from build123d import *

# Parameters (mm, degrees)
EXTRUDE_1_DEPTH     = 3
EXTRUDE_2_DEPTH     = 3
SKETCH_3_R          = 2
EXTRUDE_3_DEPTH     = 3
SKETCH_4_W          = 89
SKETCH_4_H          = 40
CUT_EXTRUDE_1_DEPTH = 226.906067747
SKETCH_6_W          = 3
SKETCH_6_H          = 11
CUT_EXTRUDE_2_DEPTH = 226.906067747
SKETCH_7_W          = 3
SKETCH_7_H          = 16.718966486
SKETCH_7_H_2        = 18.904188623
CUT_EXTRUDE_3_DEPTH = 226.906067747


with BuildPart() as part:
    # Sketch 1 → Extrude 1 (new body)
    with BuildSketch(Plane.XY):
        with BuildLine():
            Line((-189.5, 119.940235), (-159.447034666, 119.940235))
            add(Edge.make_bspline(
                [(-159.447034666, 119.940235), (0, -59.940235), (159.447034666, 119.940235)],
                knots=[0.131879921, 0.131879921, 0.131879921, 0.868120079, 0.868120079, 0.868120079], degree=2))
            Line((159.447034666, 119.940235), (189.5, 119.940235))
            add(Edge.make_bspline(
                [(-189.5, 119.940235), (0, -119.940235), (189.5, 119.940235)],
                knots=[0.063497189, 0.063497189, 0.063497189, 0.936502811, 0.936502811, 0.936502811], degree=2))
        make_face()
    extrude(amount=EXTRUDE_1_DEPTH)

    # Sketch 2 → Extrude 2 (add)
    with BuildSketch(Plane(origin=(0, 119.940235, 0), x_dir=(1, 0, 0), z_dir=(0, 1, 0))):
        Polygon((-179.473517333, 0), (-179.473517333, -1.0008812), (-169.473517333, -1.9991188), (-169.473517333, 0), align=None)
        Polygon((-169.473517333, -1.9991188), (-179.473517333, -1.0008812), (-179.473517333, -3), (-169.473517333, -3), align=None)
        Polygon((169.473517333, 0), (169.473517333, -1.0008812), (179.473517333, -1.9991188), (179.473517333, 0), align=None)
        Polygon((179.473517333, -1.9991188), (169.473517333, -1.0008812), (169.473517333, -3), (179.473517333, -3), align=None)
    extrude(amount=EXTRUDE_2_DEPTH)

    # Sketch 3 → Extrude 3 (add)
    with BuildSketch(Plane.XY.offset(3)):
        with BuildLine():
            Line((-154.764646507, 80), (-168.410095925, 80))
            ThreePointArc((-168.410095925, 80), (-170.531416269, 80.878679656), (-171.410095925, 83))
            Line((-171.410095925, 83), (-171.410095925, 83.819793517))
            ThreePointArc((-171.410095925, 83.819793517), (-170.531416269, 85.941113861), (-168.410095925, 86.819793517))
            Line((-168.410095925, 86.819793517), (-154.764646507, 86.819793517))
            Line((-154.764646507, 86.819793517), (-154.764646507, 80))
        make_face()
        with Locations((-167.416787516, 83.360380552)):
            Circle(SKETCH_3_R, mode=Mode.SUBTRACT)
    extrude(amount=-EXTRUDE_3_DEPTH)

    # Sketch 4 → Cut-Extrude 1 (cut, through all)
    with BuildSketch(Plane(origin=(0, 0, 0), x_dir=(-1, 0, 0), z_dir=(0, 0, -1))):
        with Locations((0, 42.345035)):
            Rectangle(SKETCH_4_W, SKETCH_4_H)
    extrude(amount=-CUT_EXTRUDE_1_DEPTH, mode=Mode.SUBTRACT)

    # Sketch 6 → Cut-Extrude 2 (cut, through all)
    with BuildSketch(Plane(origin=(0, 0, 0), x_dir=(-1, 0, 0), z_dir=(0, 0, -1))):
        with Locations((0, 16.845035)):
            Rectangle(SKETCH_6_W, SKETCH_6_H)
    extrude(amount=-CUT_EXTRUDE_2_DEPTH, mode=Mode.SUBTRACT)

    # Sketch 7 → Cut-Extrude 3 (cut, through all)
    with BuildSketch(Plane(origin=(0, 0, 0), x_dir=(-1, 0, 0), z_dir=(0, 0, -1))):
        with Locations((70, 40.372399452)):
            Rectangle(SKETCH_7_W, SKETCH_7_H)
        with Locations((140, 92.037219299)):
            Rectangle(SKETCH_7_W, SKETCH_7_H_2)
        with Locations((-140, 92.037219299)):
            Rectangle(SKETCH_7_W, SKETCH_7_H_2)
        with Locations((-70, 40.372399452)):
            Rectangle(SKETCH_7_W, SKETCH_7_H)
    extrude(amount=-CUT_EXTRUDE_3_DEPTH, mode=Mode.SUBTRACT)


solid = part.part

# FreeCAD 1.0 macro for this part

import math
import FreeCAD as App
import Part
import Sketcher
Q = App.Units.Quantity

doc = App.newDocument("Part")
params = doc.addObject("Spreadsheet::Sheet", "Params")
for row, (alias, value) in enumerate([
    ("pad1_length", "3 mm"),
    ("sketch2_width", "10 mm"),
    ("sketch2_height", "3 mm"),
    ("pad2_length", "3 mm"),
    ("sketch3_diameter", "4 mm"),
    ("sketch3_radius", "3 mm"),
    ("pad3_length", "3 mm"),
    ("sketch4_width", "89 mm"),
    ("sketch4_height", "40 mm"),
    ("sketch5_width", "3 mm"),
    ("sketch5_height", "11 mm"),
    ("sketch6_width", "3 mm"),
], start=1):
    params.set(f"A{row}", alias)
    params.set(f"B{row}", "=" + value)
    params.setAlias(f"B{row}", alias)

body = doc.addObject("PartDesign::Body", "Body")

# Sketch on XY plane
sketch1 = body.newObject("Sketcher::SketchObject", "Sketch")
sketch1.AttachmentSupport = (doc.getObject("XY_Plane"), [""])
sketch1.MapMode = "FlatFace"
sketch1.addGeometry(Part.LineSegment(App.Vector(-159.447035, 119.940235, 0), App.Vector(-189.5, 119.940235, 0)), False)
sketch1.addGeometry(Part.BSplineCurve([App.Vector(-189.5, 119.940235, 0), App.Vector(0, -119.940235, 0), App.Vector(189.5, 119.940235, 0)], [3, 3], [0.063497189, 0.936502811], False, 2, [1, 1, 1], False), False)
sketch1.addGeometry(Part.LineSegment(App.Vector(189.5, 119.940235, 0), App.Vector(159.447035, 119.940235, 0)), False)
sketch1.addGeometry(Part.BSplineCurve([App.Vector(-159.447035, 119.940235, 0), App.Vector(0, -59.940235, 0), App.Vector(159.447035, 119.940235, 0)], [3, 3], [0.131879921, 0.868120079], False, 2, [1, 1, 1], False), False)
sketch1.addConstraint(Sketcher.Constraint("Block", 1))
sketch1.addConstraint(Sketcher.Constraint("Block", 3))
sketch1.addConstraint(Sketcher.Constraint("Coincident", 0, 2, 1, 1))
sketch1.addConstraint(Sketcher.Constraint("Coincident", 1, 2, 2, 1))
sketch1.addConstraint(Sketcher.Constraint("Coincident", 2, 2, 3, 2))
sketch1.addConstraint(Sketcher.Constraint("Coincident", 3, 1, 0, 1))
pad1 = body.newObject("PartDesign::Pad", "Pad")
pad1.Profile = sketch1
pad1.setExpression("Length", "Params.pad1_length")

# Sketch on XZ plane
sketch2 = body.newObject("Sketcher::SketchObject", "Sketch001")
sketch2.AttachmentSupport = (doc.getObject("XZ_Plane"), [""])
sketch2.MapMode = "FlatFace"
sketch2.AttachmentOffset = App.Placement(App.Vector(0, 0, -119.940235), App.Rotation())
sketch2.addGeometry(Part.LineSegment(App.Vector(-179.5, 0, 0), App.Vector(-179.5, 3, 0)), False)
sketch2.addGeometry(Part.LineSegment(App.Vector(-179.5, 3, 0), App.Vector(-169.5, 3, 0)), False)
sketch2.addGeometry(Part.LineSegment(App.Vector(-169.5, 3, 0), App.Vector(-169.5, 0, 0)), False)
sketch2.addGeometry(Part.LineSegment(App.Vector(-169.5, 0, 0), App.Vector(-179.5, 0, 0)), False)
sketch2.addGeometry(Part.LineSegment(App.Vector(169.5, 0, 0), App.Vector(169.5, 3, 0)), False)
sketch2.addGeometry(Part.LineSegment(App.Vector(169.5, 3, 0), App.Vector(179.5, 3, 0)), False)
sketch2.addGeometry(Part.LineSegment(App.Vector(179.5, 3, 0), App.Vector(179.5, 0, 0)), False)
sketch2.addGeometry(Part.LineSegment(App.Vector(179.5, 0, 0), App.Vector(169.5, 0, 0)), False)
sketch2.addConstraint(Sketcher.Constraint("Coincident", 0, 2, 1, 1))
sketch2.addConstraint(Sketcher.Constraint("Coincident", 1, 2, 2, 1))
sketch2.addConstraint(Sketcher.Constraint("Coincident", 2, 2, 3, 1))
sketch2.addConstraint(Sketcher.Constraint("Coincident", 3, 2, 0, 1))
sketch2.addConstraint(Sketcher.Constraint("Coincident", 4, 2, 5, 1))
sketch2.addConstraint(Sketcher.Constraint("Coincident", 5, 2, 6, 1))
sketch2.addConstraint(Sketcher.Constraint("Coincident", 6, 2, 7, 1))
sketch2.addConstraint(Sketcher.Constraint("Coincident", 7, 2, 4, 1))
sketch2.addConstraint(Sketcher.Constraint("Vertical", 0))
sketch2.addConstraint(Sketcher.Constraint("Horizontal", 1))
sketch2.addConstraint(Sketcher.Constraint("Vertical", 2))
sketch2.addConstraint(Sketcher.Constraint("Horizontal", 3))
sketch2.addConstraint(Sketcher.Constraint("Vertical", 4))
sketch2.addConstraint(Sketcher.Constraint("Horizontal", 5))
sketch2.addConstraint(Sketcher.Constraint("Vertical", 6))
sketch2.addConstraint(Sketcher.Constraint("Horizontal", 7))
sketch2.addConstraint(Sketcher.Constraint("Symmetric", 3, 2, 6, 2, -1, 1))
sketch2.addConstraint(Sketcher.Constraint("Symmetric", 1, 2, 4, 2, -2))
sketch2.addConstraint(Sketcher.Constraint("PointOnObject", 2, 2, -1))
sketch2.addConstraint(Sketcher.Constraint("DistanceX", 1, 1, 1, 2, Q("10 mm")))
sketch2.addConstraint(Sketcher.Constraint("DistanceY", 0, 1, 0, 2, Q("3 mm")))
sketch2.addConstraint(Sketcher.Constraint("DistanceX", 0, 2, -1, 1, Q("179.473517 mm")))
sketch2.setExpression("Constraints[19]", "Params.sketch2_width")
sketch2.setExpression("Constraints[20]", "Params.sketch2_height")
pad2 = body.newObject("PartDesign::Pad", "Pad001")
pad2.Profile = sketch2
pad2.setExpression("Length", "Params.pad2_length")
pad2.Reversed = True

# Sketch on XY plane
sketch3 = body.newObject("Sketcher::SketchObject", "Sketch002")
sketch3.AttachmentSupport = (doc.getObject("XY_Plane"), [""])
sketch3.MapMode = "FlatFace"
sketch3.AttachmentOffset = App.Placement(App.Vector(0, 0, 3), App.Rotation())
sketch3.addGeometry(Part.LineSegment(App.Vector(-168.4, 80, 0), App.Vector(-154.8, 80, 0)), False)
sketch3.addGeometry(Part.LineSegment(App.Vector(-154.8, 80, 0), App.Vector(-154.8, 86.8, 0)), False)
sketch3.addGeometry(Part.LineSegment(App.Vector(-154.8, 86.8, 0), App.Vector(-168.4, 86.8, 0)), False)
sketch3.addGeometry(Part.ArcOfCircle(Part.Circle(App.Vector(-168.4, 83.8, 0), App.Vector(0, 0, 1), 3), math.radians(90), math.radians(180)), False)
sketch3.addGeometry(Part.LineSegment(App.Vector(-171.4, 83.8, 0), App.Vector(-171.4, 83, 0)), False)
sketch3.addGeometry(Part.ArcOfCircle(Part.Circle(App.Vector(-168.4, 83, 0), App.Vector(0, 0, 1), 3), math.radians(180), math.radians(270)), False)
sketch3.addGeometry(Part.Circle(App.Vector(-167.4, 83.4, 0), App.Vector(0, 0, 1), 2), False)
sketch3.addConstraint(Sketcher.Constraint("Coincident", 0, 2, 1, 1))
sketch3.addConstraint(Sketcher.Constraint("Coincident", 1, 2, 2, 1))
sketch3.addConstraint(Sketcher.Constraint("Tangent", 2, 2, 3, 1))
sketch3.addConstraint(Sketcher.Constraint("Tangent", 3, 2, 4, 1))
sketch3.addConstraint(Sketcher.Constraint("Tangent", 4, 2, 5, 1))
sketch3.addConstraint(Sketcher.Constraint("Tangent", 5, 2, 0, 1))
sketch3.addConstraint(Sketcher.Constraint("Horizontal", 0))
sketch3.addConstraint(Sketcher.Constraint("Vertical", 1))
sketch3.addConstraint(Sketcher.Constraint("Horizontal", 2))
sketch3.addConstraint(Sketcher.Constraint("Vertical", 4))
sketch3.addConstraint(Sketcher.Constraint("Equal", 3, 5))
sketch3.addConstraint(Sketcher.Constraint("Diameter", 6, Q("4 mm")))
sketch3.addConstraint(Sketcher.Constraint("Radius", 3, Q("3 mm")))
sketch3.addConstraint(Sketcher.Constraint("DistanceY", -1, 1, 5, 3, Q("83 mm")))
sketch3.addConstraint(Sketcher.Constraint("DistanceX", 0, 1, 0, 2, Q("13.645449 mm")))
sketch3.addConstraint(Sketcher.Constraint("DistanceY", 1, 1, 1, 2, Q("6.819794 mm")))
sketch3.addConstraint(Sketcher.Constraint("DistanceY", -1, 1, 6, 3, Q("83.360381 mm")))
sketch3.addConstraint(Sketcher.Constraint("DistanceX", 5, 3, 6, 3, Q("0.993308 mm")))
sketch3.addConstraint(Sketcher.Constraint("DistanceX", 3, 3, -1, 1, Q("168.410096 mm")))
sketch3.setExpression("Constraints[11]", "Params.sketch3_diameter")
sketch3.setExpression("Constraints[12]", "Params.sketch3_radius")
pad3 = body.newObject("PartDesign::Pad", "Pad002")
pad3.Profile = sketch3
pad3.setExpression("Length", "Params.pad3_length")
pad3.Reversed = True

# Sketch on XY plane
sketch4 = body.newObject("Sketcher::SketchObject", "Sketch003")
sketch4.AttachmentSupport = (doc.getObject("XY_Plane"), [""])
sketch4.MapMode = "FlatFace"
sketch4.addGeometry(Part.LineSegment(App.Vector(44, 62, 0), App.Vector(44, 22, 0)), False)
sketch4.addGeometry(Part.LineSegment(App.Vector(44, 22, 0), App.Vector(-44, 22, 0)), False)
sketch4.addGeometry(Part.LineSegment(App.Vector(-44, 22, 0), App.Vector(-44, 62, 0)), False)
sketch4.addGeometry(Part.LineSegment(App.Vector(-44, 62, 0), App.Vector(44, 62, 0)), False)
sketch4.addConstraint(Sketcher.Constraint("Coincident", 0, 2, 1, 1))
sketch4.addConstraint(Sketcher.Constraint("Coincident", 1, 2, 2, 1))
sketch4.addConstraint(Sketcher.Constraint("Coincident", 2, 2, 3, 1))
sketch4.addConstraint(Sketcher.Constraint("Coincident", 3, 2, 0, 1))
sketch4.addConstraint(Sketcher.Constraint("Vertical", 0))
sketch4.addConstraint(Sketcher.Constraint("Horizontal", 1))
sketch4.addConstraint(Sketcher.Constraint("Vertical", 2))
sketch4.addConstraint(Sketcher.Constraint("Horizontal", 3))
sketch4.addConstraint(Sketcher.Constraint("DistanceX", 1, 2, 1, 1, Q("89 mm")))
sketch4.addConstraint(Sketcher.Constraint("DistanceY", 0, 2, 0, 1, Q("40 mm")))
sketch4.addConstraint(Sketcher.Constraint("DistanceX", -1, 1, 0, 2, Q("44.5 mm")))
sketch4.addConstraint(Sketcher.Constraint("DistanceY", -1, 1, 0, 2, Q("22.345035 mm")))
sketch4.setExpression("Constraints[8]", "Params.sketch4_width")
sketch4.setExpression("Constraints[9]", "Params.sketch4_height")
pocket1 = body.newObject("PartDesign::Pocket", "Pocket")
pocket1.Profile = sketch4
pocket1.Type = "ThroughAll"
pocket1.Reversed = True

# Sketch on XY plane
sketch5 = body.newObject("Sketcher::SketchObject", "Sketch004")
sketch5.AttachmentSupport = (doc.getObject("XY_Plane"), [""])
sketch5.MapMode = "FlatFace"
sketch5.addGeometry(Part.LineSegment(App.Vector(1.5, 22.3, 0), App.Vector(1.5, 11.3, 0)), False)
sketch5.addGeometry(Part.LineSegment(App.Vector(1.5, 11.3, 0), App.Vector(-1.5, 11.3, 0)), False)
sketch5.addGeometry(Part.LineSegment(App.Vector(-1.5, 11.3, 0), App.Vector(-1.5, 22.3, 0)), False)
sketch5.addGeometry(Part.LineSegment(App.Vector(-1.5, 22.3, 0), App.Vector(1.5, 22.3, 0)), False)
sketch5.addConstraint(Sketcher.Constraint("Coincident", 0, 2, 1, 1))
sketch5.addConstraint(Sketcher.Constraint("Coincident", 1, 2, 2, 1))
sketch5.addConstraint(Sketcher.Constraint("Coincident", 2, 2, 3, 1))
sketch5.addConstraint(Sketcher.Constraint("Coincident", 3, 2, 0, 1))
sketch5.addConstraint(Sketcher.Constraint("Vertical", 0))
sketch5.addConstraint(Sketcher.Constraint("Horizontal", 1))
sketch5.addConstraint(Sketcher.Constraint("Vertical", 2))
sketch5.addConstraint(Sketcher.Constraint("Horizontal", 3))
sketch5.addConstraint(Sketcher.Constraint("DistanceX", 1, 2, 1, 1, Q("3 mm")))
sketch5.addConstraint(Sketcher.Constraint("DistanceY", 0, 2, 0, 1, Q("11 mm")))
sketch5.addConstraint(Sketcher.Constraint("DistanceX", -1, 1, 0, 2, Q("1.5 mm")))
sketch5.addConstraint(Sketcher.Constraint("DistanceY", -1, 1, 0, 2, Q("11.345035 mm")))
sketch5.setExpression("Constraints[8]", "Params.sketch5_width")
sketch5.setExpression("Constraints[9]", "Params.sketch5_height")
pocket2 = body.newObject("PartDesign::Pocket", "Pocket001")
pocket2.Profile = sketch5
pocket2.Type = "ThroughAll"
pocket2.Reversed = True

# Sketch on XY plane
sketch6 = body.newObject("Sketcher::SketchObject", "Sketch005")
sketch6.AttachmentSupport = (doc.getObject("XY_Plane"), [""])
sketch6.MapMode = "FlatFace"
sketch6.addGeometry(Part.LineSegment(App.Vector(-68.5, 48.7, 0), App.Vector(-68.5, 32, 0)), False)
sketch6.addGeometry(Part.LineSegment(App.Vector(-68.5, 32, 0), App.Vector(-71.5, 32, 0)), False)
sketch6.addGeometry(Part.LineSegment(App.Vector(-71.5, 32, 0), App.Vector(-71.5, 48.7, 0)), False)
sketch6.addGeometry(Part.LineSegment(App.Vector(-71.5, 48.7, 0), App.Vector(-68.5, 48.7, 0)), False)
sketch6.addGeometry(Part.LineSegment(App.Vector(-138.5, 101.5, 0), App.Vector(-138.5, 82.6, 0)), False)
sketch6.addGeometry(Part.LineSegment(App.Vector(-138.5, 82.6, 0), App.Vector(-141.5, 82.6, 0)), False)
sketch6.addGeometry(Part.LineSegment(App.Vector(-141.5, 82.6, 0), App.Vector(-141.5, 101.5, 0)), False)
sketch6.addGeometry(Part.LineSegment(App.Vector(-141.5, 101.5, 0), App.Vector(-138.5, 101.5, 0)), False)
sketch6.addGeometry(Part.LineSegment(App.Vector(141.5, 101.5, 0), App.Vector(141.5, 82.6, 0)), False)
sketch6.addGeometry(Part.LineSegment(App.Vector(141.5, 82.6, 0), App.Vector(138.5, 82.6, 0)), False)
sketch6.addGeometry(Part.LineSegment(App.Vector(138.5, 82.6, 0), App.Vector(138.5, 101.5, 0)), False)
sketch6.addGeometry(Part.LineSegment(App.Vector(138.5, 101.5, 0), App.Vector(141.5, 101.5, 0)), False)
sketch6.addGeometry(Part.LineSegment(App.Vector(71.5, 48.7, 0), App.Vector(71.5, 32, 0)), False)
sketch6.addGeometry(Part.LineSegment(App.Vector(71.5, 32, 0), App.Vector(68.5, 32, 0)), False)
sketch6.addGeometry(Part.LineSegment(App.Vector(68.5, 32, 0), App.Vector(68.5, 48.7, 0)), False)
sketch6.addGeometry(Part.LineSegment(App.Vector(68.5, 48.7, 0), App.Vector(71.5, 48.7, 0)), False)
sketch6.addConstraint(Sketcher.Constraint("Coincident", 0, 2, 1, 1))
sketch6.addConstraint(Sketcher.Constraint("Coincident", 1, 2, 2, 1))
sketch6.addConstraint(Sketcher.Constraint("Coincident", 2, 2, 3, 1))
sketch6.addConstraint(Sketcher.Constraint("Coincident", 3, 2, 0, 1))
sketch6.addConstraint(Sketcher.Constraint("Coincident", 4, 2, 5, 1))
sketch6.addConstraint(Sketcher.Constraint("Coincident", 5, 2, 6, 1))
sketch6.addConstraint(Sketcher.Constraint("Coincident", 6, 2, 7, 1))
sketch6.addConstraint(Sketcher.Constraint("Coincident", 7, 2, 4, 1))
sketch6.addConstraint(Sketcher.Constraint("Coincident", 8, 2, 9, 1))
sketch6.addConstraint(Sketcher.Constraint("Coincident", 9, 2, 10, 1))
sketch6.addConstraint(Sketcher.Constraint("Coincident", 10, 2, 11, 1))
sketch6.addConstraint(Sketcher.Constraint("Coincident", 11, 2, 8, 1))
sketch6.addConstraint(Sketcher.Constraint("Coincident", 12, 2, 13, 1))
sketch6.addConstraint(Sketcher.Constraint("Coincident", 13, 2, 14, 1))
sketch6.addConstraint(Sketcher.Constraint("Coincident", 14, 2, 15, 1))
sketch6.addConstraint(Sketcher.Constraint("Coincident", 15, 2, 12, 1))
sketch6.addConstraint(Sketcher.Constraint("Vertical", 0))
sketch6.addConstraint(Sketcher.Constraint("Horizontal", 1))
sketch6.addConstraint(Sketcher.Constraint("Vertical", 2))
sketch6.addConstraint(Sketcher.Constraint("Horizontal", 3))
sketch6.addConstraint(Sketcher.Constraint("Vertical", 4))
sketch6.addConstraint(Sketcher.Constraint("Horizontal", 5))
sketch6.addConstraint(Sketcher.Constraint("Vertical", 6))
sketch6.addConstraint(Sketcher.Constraint("Horizontal", 7))
sketch6.addConstraint(Sketcher.Constraint("Vertical", 8))
sketch6.addConstraint(Sketcher.Constraint("Horizontal", 9))
sketch6.addConstraint(Sketcher.Constraint("Vertical", 10))
sketch6.addConstraint(Sketcher.Constraint("Horizontal", 11))
sketch6.addConstraint(Sketcher.Constraint("Vertical", 12))
sketch6.addConstraint(Sketcher.Constraint("Horizontal", 13))
sketch6.addConstraint(Sketcher.Constraint("Vertical", 14))
sketch6.addConstraint(Sketcher.Constraint("Horizontal", 15))
sketch6.addConstraint(Sketcher.Constraint("Symmetric", 5, 2, 8, 2, -2))
sketch6.addConstraint(Sketcher.Constraint("Symmetric", 7, 2, 10, 2, -2))
sketch6.addConstraint(Sketcher.Constraint("Symmetric", 1, 2, 12, 2, -2))
sketch6.addConstraint(Sketcher.Constraint("Symmetric", 3, 2, 14, 2, -2))
sketch6.addConstraint(Sketcher.Constraint("Equal", 3, 5))
sketch6.addConstraint(Sketcher.Constraint("DistanceX", 1, 2, 1, 1, Q("3 mm")))
sketch6.addConstraint(Sketcher.Constraint("DistanceX", 4, 2, 2, 2, Q("67 mm")))
sketch6.addConstraint(Sketcher.Constraint("DistanceX", 3, 2, 8, 2, Q("210 mm")))
sketch6.addConstraint(Sketcher.Constraint("DistanceY", 4, 2, 4, 1, Q("18.904189 mm")))
sketch6.addConstraint(Sketcher.Constraint("DistanceY", 0, 2, 0, 1, Q("16.718966 mm")))
sketch6.addConstraint(Sketcher.Constraint("DistanceY", 1, 2, 4, 2, Q("50.572209 mm")))
sketch6.addConstraint(Sketcher.Constraint("DistanceY", -1, 1, 0, 2, Q("32.012916 mm")))
sketch6.setExpression("Constraints[37]", "Params.sketch6_width")
pocket3 = body.newObject("PartDesign::Pocket", "Pocket002")
pocket3.Profile = sketch6
pocket3.Type = "ThroughAll"
pocket3.Reversed = True

doc.recompute()
